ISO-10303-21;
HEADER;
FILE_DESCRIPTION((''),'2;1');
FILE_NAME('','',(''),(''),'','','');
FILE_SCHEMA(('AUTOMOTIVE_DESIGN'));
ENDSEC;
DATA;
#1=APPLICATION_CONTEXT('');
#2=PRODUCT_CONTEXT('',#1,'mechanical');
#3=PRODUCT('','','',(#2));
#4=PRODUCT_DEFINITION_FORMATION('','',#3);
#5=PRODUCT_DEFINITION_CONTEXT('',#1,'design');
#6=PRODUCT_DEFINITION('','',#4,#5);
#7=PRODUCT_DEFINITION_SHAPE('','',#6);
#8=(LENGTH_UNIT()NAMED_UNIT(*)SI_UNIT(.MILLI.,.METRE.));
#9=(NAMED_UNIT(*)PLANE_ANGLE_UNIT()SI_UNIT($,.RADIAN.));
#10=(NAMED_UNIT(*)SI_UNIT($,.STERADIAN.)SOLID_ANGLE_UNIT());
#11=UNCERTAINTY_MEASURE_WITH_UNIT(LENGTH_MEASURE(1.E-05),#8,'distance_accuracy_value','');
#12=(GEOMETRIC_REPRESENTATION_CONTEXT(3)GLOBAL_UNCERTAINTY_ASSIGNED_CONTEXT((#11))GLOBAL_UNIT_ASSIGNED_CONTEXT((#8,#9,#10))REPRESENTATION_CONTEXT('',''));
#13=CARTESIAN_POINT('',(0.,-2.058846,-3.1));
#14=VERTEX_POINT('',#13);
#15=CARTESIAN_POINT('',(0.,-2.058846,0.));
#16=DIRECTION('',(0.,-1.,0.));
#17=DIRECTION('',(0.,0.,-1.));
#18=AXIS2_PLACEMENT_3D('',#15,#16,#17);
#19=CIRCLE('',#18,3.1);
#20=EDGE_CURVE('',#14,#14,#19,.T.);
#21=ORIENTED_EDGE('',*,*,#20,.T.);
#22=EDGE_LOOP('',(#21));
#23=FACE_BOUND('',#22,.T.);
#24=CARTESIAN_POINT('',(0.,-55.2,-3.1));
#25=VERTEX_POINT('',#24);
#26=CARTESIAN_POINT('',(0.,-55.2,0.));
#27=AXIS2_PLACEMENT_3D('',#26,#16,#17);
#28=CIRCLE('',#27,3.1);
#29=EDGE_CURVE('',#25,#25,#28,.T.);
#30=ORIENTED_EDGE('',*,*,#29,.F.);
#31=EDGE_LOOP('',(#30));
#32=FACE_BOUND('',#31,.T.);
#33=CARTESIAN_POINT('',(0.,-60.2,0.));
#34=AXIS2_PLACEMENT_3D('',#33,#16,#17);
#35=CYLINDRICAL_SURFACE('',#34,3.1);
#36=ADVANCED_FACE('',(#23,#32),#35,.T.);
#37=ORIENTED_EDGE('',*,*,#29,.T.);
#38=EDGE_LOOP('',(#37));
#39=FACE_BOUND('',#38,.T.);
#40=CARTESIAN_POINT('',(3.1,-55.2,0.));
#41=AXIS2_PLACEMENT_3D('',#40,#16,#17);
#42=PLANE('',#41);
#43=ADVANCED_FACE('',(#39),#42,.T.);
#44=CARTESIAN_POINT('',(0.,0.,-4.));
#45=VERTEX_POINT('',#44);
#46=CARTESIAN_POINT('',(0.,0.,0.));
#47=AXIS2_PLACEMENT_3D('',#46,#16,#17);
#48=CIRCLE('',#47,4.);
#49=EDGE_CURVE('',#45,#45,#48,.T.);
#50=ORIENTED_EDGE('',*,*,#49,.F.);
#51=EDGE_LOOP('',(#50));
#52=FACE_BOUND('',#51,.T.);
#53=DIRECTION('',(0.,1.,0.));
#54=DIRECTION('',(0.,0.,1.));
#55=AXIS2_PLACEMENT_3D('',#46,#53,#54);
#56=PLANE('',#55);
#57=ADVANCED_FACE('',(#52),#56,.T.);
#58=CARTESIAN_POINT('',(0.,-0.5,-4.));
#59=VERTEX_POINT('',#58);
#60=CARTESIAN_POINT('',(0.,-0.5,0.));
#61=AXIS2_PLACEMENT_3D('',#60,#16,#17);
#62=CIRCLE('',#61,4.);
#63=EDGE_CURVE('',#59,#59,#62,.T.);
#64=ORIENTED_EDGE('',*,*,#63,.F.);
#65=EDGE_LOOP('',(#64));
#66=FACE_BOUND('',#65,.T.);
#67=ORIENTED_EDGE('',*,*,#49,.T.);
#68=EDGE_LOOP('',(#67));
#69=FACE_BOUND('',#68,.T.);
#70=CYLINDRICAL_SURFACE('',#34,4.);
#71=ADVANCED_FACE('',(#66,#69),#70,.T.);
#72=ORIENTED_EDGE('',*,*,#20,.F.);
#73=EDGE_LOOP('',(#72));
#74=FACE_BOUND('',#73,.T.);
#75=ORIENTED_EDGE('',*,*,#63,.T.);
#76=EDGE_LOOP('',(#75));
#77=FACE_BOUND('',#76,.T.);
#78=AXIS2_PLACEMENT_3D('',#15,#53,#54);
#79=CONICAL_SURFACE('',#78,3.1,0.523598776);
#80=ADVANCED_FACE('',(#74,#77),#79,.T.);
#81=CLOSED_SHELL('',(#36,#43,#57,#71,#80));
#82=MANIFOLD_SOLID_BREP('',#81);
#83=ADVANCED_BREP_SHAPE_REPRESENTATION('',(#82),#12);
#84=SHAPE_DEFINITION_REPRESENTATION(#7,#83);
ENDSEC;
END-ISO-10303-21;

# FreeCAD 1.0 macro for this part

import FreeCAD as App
import Part
import Sketcher
from FreeCAD import Vector
Q = App.Units.Quantity


def add_polygon(sketch, points):
    """Adds a closed chain of lines whose ends are joined by coincident constraints."""
    first, n = sketch.GeometryCount, len(points)
    for a, b in zip(points, points[1:] + points[:1]):
        sketch.addGeometry(Part.LineSegment(App.Vector(*a, 0), App.Vector(*b, 0)), False)
    for i in range(n):
        sketch.addConstraint(Sketcher.Constraint("Coincident", first + i, 2, first + (i + 1) % n, 1))

doc = App.newDocument("Part")
body = doc.addObject("PartDesign::Body", "Body")

# Sketch on XY plane
sketch1 = body.newObject("Sketcher::SketchObject", "Sketch")
sketch1.AttachmentSupport = (doc.getObject("XY_Plane"), [""])
sketch1.MapMode = "FlatFace"
add_polygon(sketch1, [(4, 0), (0, 0), (0, -55.2), (3.1, -55.2), (3.1, -2.1), (4, -0.5)])  # lines 0-5
sketch1.addConstraint(Sketcher.Constraint("Horizontal", 0))
sketch1.addConstraint(Sketcher.Constraint("Vertical", 1))
sketch1.addConstraint(Sketcher.Constraint("Horizontal", 2))
sketch1.addConstraint(Sketcher.Constraint("Vertical", 3))
sketch1.addConstraint(Sketcher.Constraint("Vertical", 5))
sketch1.addConstraint(Sketcher.Constraint("Coincident", 0, 2, -1, 1))
sketch1.addConstraint(Sketcher.Constraint("DistanceX", 0, 2, 0, 1, 4.0))
sketch1.addConstraint(Sketcher.Constraint("Angle", 4, Q("60 deg")))
sketch1.addConstraint(Sketcher.Constraint("DistanceX", 2, 1, 2, 2, 3.1))
sketch1.addConstraint(Sketcher.Constraint("DistanceY", 1, 2, 1, 1, 55.2))
sketch1.addConstraint(Sketcher.Constraint("DistanceY", 5, 1, 5, 2, 0.5))
revolution = body.newObject("PartDesign::Revolution", "Revolution")
revolution.Profile = sketch1
revolution.ReferenceAxis = (sketch1, ["V_Axis"])
revolution.Angle = 360

doc.recompute()
